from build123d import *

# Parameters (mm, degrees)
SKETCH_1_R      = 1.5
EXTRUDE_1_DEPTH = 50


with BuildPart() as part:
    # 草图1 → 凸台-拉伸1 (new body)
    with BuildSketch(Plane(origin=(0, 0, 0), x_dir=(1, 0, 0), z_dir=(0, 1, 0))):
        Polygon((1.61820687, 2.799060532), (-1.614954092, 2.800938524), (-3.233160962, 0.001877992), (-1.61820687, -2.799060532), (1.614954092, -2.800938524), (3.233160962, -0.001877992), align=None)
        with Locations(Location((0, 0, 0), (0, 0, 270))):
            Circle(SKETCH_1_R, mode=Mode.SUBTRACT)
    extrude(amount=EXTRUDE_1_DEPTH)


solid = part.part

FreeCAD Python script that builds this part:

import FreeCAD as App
import Part
import Sketcher


def add_polygon(sketch, points):
    """Adds a closed chain of lines whose ends are joined by coincident constraints."""
    first, n = sketch.GeometryCount, len(points)
    for a, b in zip(points, points[1:] + points[:1]):
        sketch.addGeometry(Part.LineSegment(App.Vector(*a, 0), App.Vector(*b, 0)), False)
    for i in range(n):
        sketch.addConstraint(Sketcher.Constraint("Coincident", first + i, 2, first + (i + 1) % n, 1))

doc = App.newDocument("Part")
body = doc.addObject("PartDesign::Body", "Body")

sketch1 = body.newObject("Sketcher::SketchObject", "Sketch")
sketch1.AttachmentSupport = (doc.getObject("XZ_Plane"), [""])
sketch1.MapMode = "FlatFace"
add_polygon(sketch1, [(1.6, -2.8), (-1.6, -2.8), (-3.2, 0), (-1.6, 2.8), (1.6, 2.8), (3.2, 0)])
sketch1.addGeometry(Part.Circle(App.Vector(0, 0, 0), App.Vector(0, 0, 1), 1.5), False)
sketch1.addConstraint([
    Sketcher.Constraint("Coincident", 6, 3, -1, 1),
    Sketcher.Constraint("Symmetric", 0, 2, 3, 2, -1, 1),
    Sketcher.Constraint("Symmetric", 1, 2, 4, 2, -1, 1),
    Sketcher.Constraint("Symmetric", 2, 2, 5, 2, -1, 1),
    Sketcher.Constraint("Equal", 0, 1),
    Sketcher.Constraint("Equal", 1, 2),
    Sketcher.Constraint("Diameter", 6, 3.0),
    Sketcher.Constraint("DistanceY", 0, 2, 2, 2, 5.599999),
    Sketcher.Constraint("Distance", 0, 3.233162),
    Sketcher.Constraint("DistanceY", 0, 2, -1, 1, 2.800939),
    Sketcher.Constraint("DistanceY", 0, 2, 1, 2, 2.799061),
])
pad1 = body.newObject("PartDesign::Pad", "Pad")
pad1.Profile = sketch1
pad1.Length = 50
pad1.Reversed = True

doc.recompute()
